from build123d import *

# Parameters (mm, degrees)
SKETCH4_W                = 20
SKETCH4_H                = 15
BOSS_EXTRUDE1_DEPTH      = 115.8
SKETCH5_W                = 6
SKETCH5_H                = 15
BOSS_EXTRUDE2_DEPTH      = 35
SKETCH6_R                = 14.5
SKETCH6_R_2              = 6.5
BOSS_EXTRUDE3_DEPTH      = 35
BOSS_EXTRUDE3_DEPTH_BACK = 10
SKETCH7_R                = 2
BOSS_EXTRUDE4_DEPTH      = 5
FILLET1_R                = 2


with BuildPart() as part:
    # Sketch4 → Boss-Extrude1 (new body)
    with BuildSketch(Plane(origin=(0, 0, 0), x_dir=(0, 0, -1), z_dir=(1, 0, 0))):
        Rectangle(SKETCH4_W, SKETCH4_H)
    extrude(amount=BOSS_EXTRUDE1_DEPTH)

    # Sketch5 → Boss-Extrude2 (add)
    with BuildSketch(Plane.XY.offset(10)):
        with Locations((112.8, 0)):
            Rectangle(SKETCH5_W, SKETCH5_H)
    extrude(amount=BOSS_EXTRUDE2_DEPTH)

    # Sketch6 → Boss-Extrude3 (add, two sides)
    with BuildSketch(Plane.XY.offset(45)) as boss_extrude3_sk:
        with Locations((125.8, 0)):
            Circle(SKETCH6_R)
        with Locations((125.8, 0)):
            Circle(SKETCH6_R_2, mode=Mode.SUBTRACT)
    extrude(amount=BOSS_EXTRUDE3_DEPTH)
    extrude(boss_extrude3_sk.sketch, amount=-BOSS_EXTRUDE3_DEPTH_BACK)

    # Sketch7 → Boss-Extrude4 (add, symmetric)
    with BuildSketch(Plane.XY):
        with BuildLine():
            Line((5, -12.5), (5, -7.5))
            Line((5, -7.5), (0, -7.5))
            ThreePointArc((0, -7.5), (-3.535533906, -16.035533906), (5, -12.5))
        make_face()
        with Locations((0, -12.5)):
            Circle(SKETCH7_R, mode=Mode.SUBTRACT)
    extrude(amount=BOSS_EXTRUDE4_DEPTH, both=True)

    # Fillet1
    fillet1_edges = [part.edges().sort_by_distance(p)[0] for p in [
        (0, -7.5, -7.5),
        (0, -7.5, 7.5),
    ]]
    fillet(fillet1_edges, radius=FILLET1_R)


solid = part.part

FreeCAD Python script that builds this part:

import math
import FreeCAD as App
import Part
import Sketcher

V = App.Vector
Q = App.Units.Quantity


def edges_at(feature, points):
    """Names of the edges that pass closest to the given points."""
    edges = feature.Shape.Edges
    near = lambda p: min(range(len(edges)), key=lambda i: edges[i].distToShape(Part.Vertex(*p))[0])
    return sorted({f"Edge{near(p) + 1}" for p in points})

doc = App.newDocument("Part")
params = doc.addObject("Spreadsheet::Sheet", "Params")
for row, (alias, value) in enumerate([
    ("sketch1_width", "15 mm"),
    ("sketch1_height", "20 mm"),
    ("pad1_length", "115.8 mm"),
    ("sketch2_width", "6 mm"),
    ("sketch2_height", "15 mm"),
    ("pad2_length", "35 mm"),
    ("sketch3_diameter", "29 mm"),
    ("sketch3_diameter2", "13 mm"),
    ("pad3_length", "35 mm"),
    ("pad3_length2", "10 mm"),
    ("sketch4_diameter", "4 mm"),
    ("sketch4_radius", "5 mm"),
    ("pad4_length", "10 mm"),
    ("fillet_radius", "2 mm"),
], start=1):
    params.set(f"A{row}", alias)
    params.set(f"B{row}", "=" + value)
    params.setAlias(f"B{row}", alias)

body = doc.addObject("PartDesign::Body", "Body")

# Sketch on YZ plane
sketch1 = body.newObject("Sketcher::SketchObject", "Sketch")
sketch1.AttachmentSupport = (doc.getObject("YZ_Plane"), [""])
sketch1.MapMode = "FlatFace"
sketch1.addGeometry([
    Part.LineSegment(V(7.5, 10, 0), V(-7.5, 10, 0)),
    Part.LineSegment(V(-7.5, 10, 0), V(-7.5, -10, 0)),
    Part.LineSegment(V(-7.5, -10, 0), V(7.5, -10, 0)),
    Part.LineSegment(V(7.5, -10, 0), V(7.5, 10, 0)),
], False)
sketch1.addConstraint([
    Sketcher.Constraint("Coincident", 0, 2, 1, 1),
    Sketcher.Constraint("Coincident", 1, 2, 2, 1),
    Sketcher.Constraint("Coincident", 2, 2, 3, 1),
    Sketcher.Constraint("Coincident", 3, 2, 0, 1),
    Sketcher.Constraint("Horizontal", 0),
    Sketcher.Constraint("Vertical", 1),
    Sketcher.Constraint("Horizontal", 2),
    Sketcher.Constraint("Vertical", 3),
    Sketcher.Constraint("Symmetric", 0, 2, 2, 2, -1, 1),
    Sketcher.Constraint("DistanceX", 0, 2, 0, 1, Q("15 mm")),
    Sketcher.Constraint("DistanceY", 1, 2, 1, 1, Q("20 mm")),
])
sketch1.setExpression("Constraints[9]", "Params.sketch1_width")
sketch1.setExpression("Constraints[10]", "Params.sketch1_height")
pad1 = body.newObject("PartDesign::Pad", "Pad")
pad1.Profile = sketch1
pad1.setExpression("Length", "Params.pad1_length")

# Sketch on XY plane
sketch2 = body.newObject("Sketcher::SketchObject", "Sketch001")
sketch2.AttachmentSupport = (doc.getObject("XY_Plane"), [""])
sketch2.MapMode = "FlatFace"
sketch2.AttachmentOffset = App.Placement(V(0, 0, 10), App.Rotation())
sketch2.addGeometry([
    Part.LineSegment(V(109.8, 7.5, 0), V(109.8, -7.5, 0)),
    Part.LineSegment(V(109.8, -7.5, 0), V(115.8, -7.5, 0)),
    Part.LineSegment(V(115.8, -7.5, 0), V(115.8, 7.5, 0)),
    Part.LineSegment(V(115.8, 7.5, 0), V(109.8, 7.5, 0)),
], False)
sketch2.addConstraint([
    Sketcher.Constraint("Coincident", 0, 2, 1, 1),
    Sketcher.Constraint("Coincident", 1, 2, 2, 1),
    Sketcher.Constraint("Coincident", 2, 2, 3, 1),
    Sketcher.Constraint("Coincident", 3, 2, 0, 1),
    Sketcher.Constraint("Vertical", 0),
    Sketcher.Constraint("Horizontal", 1),
    Sketcher.Constraint("Vertical", 2),
    Sketcher.Constraint("Horizontal", 3),
    Sketcher.Constraint("DistanceX", 1, 1, 1, 2, Q("6 mm")),
    Sketcher.Constraint("DistanceY", 0, 2, 0, 1, Q("15 mm")),
    Sketcher.Constraint("DistanceX", -1, 1, 0, 2, Q("109.8 mm")),
    Sketcher.Constraint("DistanceY", 0, 2, -1, 1, Q("7.5 mm")),
])
sketch2.setExpression("Constraints[8]", "Params.sketch2_width")
sketch2.setExpression("Constraints[9]", "Params.sketch2_height")
pad2 = body.newObject("PartDesign::Pad", "Pad001")
pad2.Profile = sketch2
pad2.setExpression("Length", "Params.pad2_length")

# Sketch on XY plane
sketch3 = body.newObject("Sketcher::SketchObject", "Sketch002")
sketch3.AttachmentSupport = (doc.getObject("XY_Plane"), [""])
sketch3.MapMode = "FlatFace"
sketch3.AttachmentOffset = App.Placement(V(0, 0, 45), App.Rotation())
sketch3.addGeometry([
    Part.Circle(V(125.8, 0, 0), V(0, 0, 1), 14.5),
    Part.Circle(V(125.8, 0, 0), V(0, 0, 1), 6.5),
], False)
sketch3.addConstraint([
    Sketcher.Constraint("Coincident", 1, 3, 0, 3),
    Sketcher.Constraint("PointOnObject", 0, 3, -1),
    Sketcher.Constraint("Diameter", 0, Q("29 mm")),
    Sketcher.Constraint("Diameter", 1, Q("13 mm")),
    Sketcher.Constraint("DistanceX", -1, 1, 0, 3, Q("125.8 mm")),
])
sketch3.setExpression("Constraints[2]", "Params.sketch3_diameter")
sketch3.setExpression("Constraints[3]", "Params.sketch3_diameter2")
pad3 = body.newObject("PartDesign::Pad", "Pad002")
pad3.Profile = sketch3
pad3.Type = "TwoLengths"
pad3.setExpression("Length", "Params.pad3_length")
pad3.setExpression("Length2", "Params.pad3_length2")

# Sketch on XY plane
sketch4 = body.newObject("Sketcher::SketchObject", "Sketch003")
sketch4.AttachmentSupport = (doc.getObject("XY_Plane"), [""])
sketch4.MapMode = "FlatFace"
sketch4.addGeometry([
    Part.LineSegment(V(5, -12.5, 0), V(5, -7.5, 0)),
    Part.LineSegment(V(5, -7.5, 0), V(0, -7.5, 0)),
    Part.ArcOfCircle(Part.Circle(V(0, -12.5, 0), V(0, 0, 1), 5), math.radians(90), math.radians(360)),
    Part.Circle(V(0, -12.5, 0), V(0, 0, 1), 2),
], False)
sketch4.addConstraint([
    Sketcher.Constraint("Coincident", 0, 2, 1, 1),
    Sketcher.Constraint("Tangent", 1, 2, 2, 1),
    Sketcher.Constraint("Tangent", 2, 2, 0, 1),
    Sketcher.Constraint("Vertical", 0),
    Sketcher.Constraint("Horizontal", 1),
    Sketcher.Constraint("Coincident", 3, 3, 2, 3),
    Sketcher.Constraint("PointOnObject", 2, 3, -2),
    Sketcher.Constraint("Diameter", 3, Q("4 mm")),
    Sketcher.Constraint("Radius", 2, Q("5 mm")),
    Sketcher.Constraint("DistanceY", 2, 3, -1, 1, Q("12.5 mm")),
])
sketch4.setExpression("Constraints[7]", "Params.sketch4_diameter")
sketch4.setExpression("Constraints[8]", "Params.sketch4_radius")
pad4 = body.newObject("PartDesign::Pad", "Pad003")
pad4.Profile = sketch4
pad4.setExpression("Length", "Params.pad4_length")
pad4.Midplane = True
doc.recompute()

fillet = body.newObject("PartDesign::Fillet", "Fillet")
fillet.Base = (pad4, edges_at(pad4, [(0, -7.5, -7.5), (0, -7.5, 7.5)]))
fillet.setExpression("Radius", "Params.fillet_radius")

doc.recompute()
